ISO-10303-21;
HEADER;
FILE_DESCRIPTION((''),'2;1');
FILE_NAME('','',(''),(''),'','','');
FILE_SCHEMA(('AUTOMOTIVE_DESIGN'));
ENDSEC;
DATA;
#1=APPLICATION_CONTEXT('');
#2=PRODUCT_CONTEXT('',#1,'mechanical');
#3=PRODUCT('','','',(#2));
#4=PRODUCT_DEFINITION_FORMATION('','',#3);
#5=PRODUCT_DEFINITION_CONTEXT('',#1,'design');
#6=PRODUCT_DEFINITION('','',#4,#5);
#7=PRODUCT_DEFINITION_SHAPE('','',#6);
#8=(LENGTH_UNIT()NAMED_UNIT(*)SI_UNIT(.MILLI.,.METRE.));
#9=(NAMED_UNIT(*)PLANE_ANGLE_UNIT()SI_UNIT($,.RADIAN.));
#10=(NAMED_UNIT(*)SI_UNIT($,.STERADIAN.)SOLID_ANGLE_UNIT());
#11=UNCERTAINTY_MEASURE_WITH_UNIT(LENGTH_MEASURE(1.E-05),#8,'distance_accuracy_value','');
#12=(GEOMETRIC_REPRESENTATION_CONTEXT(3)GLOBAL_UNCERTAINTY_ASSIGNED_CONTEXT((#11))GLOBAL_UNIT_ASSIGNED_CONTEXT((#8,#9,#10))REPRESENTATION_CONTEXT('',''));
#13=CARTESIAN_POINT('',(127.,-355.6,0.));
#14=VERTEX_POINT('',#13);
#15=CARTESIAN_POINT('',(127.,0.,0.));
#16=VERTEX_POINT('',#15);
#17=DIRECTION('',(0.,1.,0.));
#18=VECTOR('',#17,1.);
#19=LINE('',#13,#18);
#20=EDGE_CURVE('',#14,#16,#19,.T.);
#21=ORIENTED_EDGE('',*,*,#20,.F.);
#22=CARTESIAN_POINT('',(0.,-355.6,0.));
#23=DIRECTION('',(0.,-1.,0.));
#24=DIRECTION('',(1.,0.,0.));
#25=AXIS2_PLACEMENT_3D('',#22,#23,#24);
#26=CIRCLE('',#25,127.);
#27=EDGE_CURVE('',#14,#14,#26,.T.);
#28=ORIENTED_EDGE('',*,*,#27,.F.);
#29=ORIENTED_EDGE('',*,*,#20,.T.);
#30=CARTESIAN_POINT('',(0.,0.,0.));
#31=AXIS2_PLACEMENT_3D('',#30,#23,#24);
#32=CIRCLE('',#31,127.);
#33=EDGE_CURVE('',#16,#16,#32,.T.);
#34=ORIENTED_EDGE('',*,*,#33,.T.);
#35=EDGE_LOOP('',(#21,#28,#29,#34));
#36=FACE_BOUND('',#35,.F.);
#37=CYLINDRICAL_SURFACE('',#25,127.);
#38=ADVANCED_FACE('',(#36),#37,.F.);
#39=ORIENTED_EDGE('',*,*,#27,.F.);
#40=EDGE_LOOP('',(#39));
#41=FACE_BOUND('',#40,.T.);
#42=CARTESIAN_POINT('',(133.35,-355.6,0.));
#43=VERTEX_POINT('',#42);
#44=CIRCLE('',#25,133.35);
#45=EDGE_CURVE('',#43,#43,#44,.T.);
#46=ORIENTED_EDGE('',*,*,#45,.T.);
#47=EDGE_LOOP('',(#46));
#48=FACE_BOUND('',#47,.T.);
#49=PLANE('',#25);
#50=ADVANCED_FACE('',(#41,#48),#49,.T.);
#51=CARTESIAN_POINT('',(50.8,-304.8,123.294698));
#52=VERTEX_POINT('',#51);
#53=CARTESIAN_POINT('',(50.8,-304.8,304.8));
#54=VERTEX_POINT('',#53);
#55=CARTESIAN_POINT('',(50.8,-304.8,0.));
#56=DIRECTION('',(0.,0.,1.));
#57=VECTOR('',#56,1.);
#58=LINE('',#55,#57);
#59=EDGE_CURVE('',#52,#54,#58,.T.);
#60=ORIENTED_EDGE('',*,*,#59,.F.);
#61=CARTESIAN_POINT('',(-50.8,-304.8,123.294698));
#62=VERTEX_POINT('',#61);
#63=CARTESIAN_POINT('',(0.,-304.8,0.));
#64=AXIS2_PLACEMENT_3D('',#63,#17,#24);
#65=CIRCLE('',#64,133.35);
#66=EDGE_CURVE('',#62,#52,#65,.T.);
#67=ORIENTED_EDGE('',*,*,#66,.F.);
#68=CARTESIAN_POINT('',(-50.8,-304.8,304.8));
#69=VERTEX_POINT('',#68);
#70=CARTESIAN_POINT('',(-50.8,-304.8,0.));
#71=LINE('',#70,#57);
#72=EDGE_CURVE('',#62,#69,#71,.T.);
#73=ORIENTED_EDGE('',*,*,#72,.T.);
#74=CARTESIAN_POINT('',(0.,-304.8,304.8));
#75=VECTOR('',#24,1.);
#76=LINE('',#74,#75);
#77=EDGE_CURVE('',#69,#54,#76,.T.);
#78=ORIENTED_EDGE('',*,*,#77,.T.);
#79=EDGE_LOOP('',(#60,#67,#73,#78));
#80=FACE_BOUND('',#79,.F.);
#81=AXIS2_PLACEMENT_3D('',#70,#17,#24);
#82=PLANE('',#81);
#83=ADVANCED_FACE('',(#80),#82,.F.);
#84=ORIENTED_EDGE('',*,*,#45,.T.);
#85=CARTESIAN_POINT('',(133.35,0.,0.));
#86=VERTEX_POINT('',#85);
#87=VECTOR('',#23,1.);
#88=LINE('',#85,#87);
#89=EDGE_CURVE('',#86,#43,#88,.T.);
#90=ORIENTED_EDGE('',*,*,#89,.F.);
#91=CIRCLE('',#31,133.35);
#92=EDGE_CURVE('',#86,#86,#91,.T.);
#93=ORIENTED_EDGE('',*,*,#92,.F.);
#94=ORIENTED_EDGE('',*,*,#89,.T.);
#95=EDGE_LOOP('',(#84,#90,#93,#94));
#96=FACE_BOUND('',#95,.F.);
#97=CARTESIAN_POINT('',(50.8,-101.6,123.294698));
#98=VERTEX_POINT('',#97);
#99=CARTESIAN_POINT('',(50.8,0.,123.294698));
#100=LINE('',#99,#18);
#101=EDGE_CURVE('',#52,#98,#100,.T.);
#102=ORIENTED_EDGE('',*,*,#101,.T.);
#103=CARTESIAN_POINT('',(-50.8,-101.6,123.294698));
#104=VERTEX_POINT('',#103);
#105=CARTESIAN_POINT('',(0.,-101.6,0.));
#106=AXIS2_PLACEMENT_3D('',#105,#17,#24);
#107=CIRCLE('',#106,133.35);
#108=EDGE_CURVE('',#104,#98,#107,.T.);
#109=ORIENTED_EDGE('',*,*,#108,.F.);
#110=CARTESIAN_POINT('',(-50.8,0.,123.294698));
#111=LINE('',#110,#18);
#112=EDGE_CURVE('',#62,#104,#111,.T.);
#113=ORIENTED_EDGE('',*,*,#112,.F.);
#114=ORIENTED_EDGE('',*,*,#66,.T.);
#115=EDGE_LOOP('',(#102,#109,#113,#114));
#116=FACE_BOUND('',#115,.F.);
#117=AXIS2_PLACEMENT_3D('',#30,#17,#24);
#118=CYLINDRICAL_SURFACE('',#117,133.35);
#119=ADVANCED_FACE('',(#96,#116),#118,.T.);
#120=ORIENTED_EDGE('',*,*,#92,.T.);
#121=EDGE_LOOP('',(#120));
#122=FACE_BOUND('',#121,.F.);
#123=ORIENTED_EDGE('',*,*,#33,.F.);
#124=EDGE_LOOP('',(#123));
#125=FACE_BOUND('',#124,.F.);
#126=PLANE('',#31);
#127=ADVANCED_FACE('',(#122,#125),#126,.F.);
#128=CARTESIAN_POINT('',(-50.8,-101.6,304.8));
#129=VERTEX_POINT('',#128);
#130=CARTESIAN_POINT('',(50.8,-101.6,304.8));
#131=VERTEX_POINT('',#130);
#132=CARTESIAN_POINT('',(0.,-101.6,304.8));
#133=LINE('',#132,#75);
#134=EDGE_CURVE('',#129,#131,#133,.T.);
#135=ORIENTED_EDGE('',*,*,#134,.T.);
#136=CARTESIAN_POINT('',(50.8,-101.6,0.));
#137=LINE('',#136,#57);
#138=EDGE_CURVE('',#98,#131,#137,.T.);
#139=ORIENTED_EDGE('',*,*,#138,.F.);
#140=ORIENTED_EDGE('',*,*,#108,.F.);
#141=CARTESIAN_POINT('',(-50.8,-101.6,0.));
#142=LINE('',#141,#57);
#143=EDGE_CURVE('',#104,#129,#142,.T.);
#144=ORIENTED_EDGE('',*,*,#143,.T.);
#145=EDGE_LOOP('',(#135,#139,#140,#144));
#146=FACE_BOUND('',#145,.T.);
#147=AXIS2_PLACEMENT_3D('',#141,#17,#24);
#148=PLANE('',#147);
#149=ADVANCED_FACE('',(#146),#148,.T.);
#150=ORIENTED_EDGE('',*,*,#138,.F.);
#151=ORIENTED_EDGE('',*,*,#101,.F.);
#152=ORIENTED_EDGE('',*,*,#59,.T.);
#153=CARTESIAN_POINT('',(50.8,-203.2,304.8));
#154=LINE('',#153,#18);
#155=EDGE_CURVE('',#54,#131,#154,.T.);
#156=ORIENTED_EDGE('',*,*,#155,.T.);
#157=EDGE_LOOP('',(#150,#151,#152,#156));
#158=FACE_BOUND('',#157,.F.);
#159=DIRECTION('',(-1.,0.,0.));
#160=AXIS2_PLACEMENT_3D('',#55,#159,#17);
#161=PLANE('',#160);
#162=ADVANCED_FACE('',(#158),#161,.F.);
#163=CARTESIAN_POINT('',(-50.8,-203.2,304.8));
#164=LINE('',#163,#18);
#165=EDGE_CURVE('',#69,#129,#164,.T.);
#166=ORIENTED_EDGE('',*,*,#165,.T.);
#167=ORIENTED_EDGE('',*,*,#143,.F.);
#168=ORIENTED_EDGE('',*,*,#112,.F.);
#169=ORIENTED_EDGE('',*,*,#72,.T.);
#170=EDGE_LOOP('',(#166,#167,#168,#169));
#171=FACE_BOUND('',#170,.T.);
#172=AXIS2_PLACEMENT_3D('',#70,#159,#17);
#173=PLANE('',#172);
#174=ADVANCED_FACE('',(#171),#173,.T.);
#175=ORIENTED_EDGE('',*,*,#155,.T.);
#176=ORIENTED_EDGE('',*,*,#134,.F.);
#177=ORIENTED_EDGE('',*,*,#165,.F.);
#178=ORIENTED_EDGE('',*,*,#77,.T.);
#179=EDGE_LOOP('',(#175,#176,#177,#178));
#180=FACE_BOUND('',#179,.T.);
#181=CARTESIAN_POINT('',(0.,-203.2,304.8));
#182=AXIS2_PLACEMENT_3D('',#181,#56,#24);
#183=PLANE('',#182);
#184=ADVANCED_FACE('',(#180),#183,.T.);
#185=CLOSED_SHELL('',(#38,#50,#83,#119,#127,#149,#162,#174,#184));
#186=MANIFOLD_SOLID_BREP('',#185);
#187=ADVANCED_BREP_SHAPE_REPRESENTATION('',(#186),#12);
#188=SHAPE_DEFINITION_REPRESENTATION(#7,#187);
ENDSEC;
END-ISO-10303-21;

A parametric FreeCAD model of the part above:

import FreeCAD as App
import Part
import Sketcher

V = App.Vector
Q = App.Units.Quantity


def add_polygon(sketch, points):
    """Adds a closed chain of lines whose ends are joined by coincident constraints."""
    first, n = sketch.GeometryCount, len(points)
    for a, b in zip(points, points[1:] + points[:1]):
        sketch.addGeometry(Part.LineSegment(App.Vector(*a, 0), App.Vector(*b, 0)), False)
    for i in range(n):
        sketch.addConstraint(Sketcher.Constraint("Coincident", first + i, 2, first + (i + 1) % n, 1))

doc = App.newDocument("Part")
body = doc.addObject("PartDesign::Body", "Body")

# Sketch on XZ plane
sketch1 = doc.addObject("Sketcher::SketchObject", "Sketch")
body.addObject(sketch1)
sketch1.AttachmentSupport = (doc.XZ_Plane, [""])
sketch1.MapMode = "FlatFace"
sketch1.addGeometry(Part.Circle(V(0, 0, 0), V(0, 0, 1), 133), False)
sketch1.addConstraint([
    Sketcher.Constraint("Coincident", 0, 3, -1, 1),
    Sketcher.Constraint("Diameter", 0, Q("10.5 in")),
])
pad1 = doc.addObject("PartDesign::Pad", "Pad")
body.addObject(pad1)
pad1.Profile = sketch1
pad1.Length = Q("14 in")

# Sketch on XY plane
sketch2 = doc.addObject("Sketcher::SketchObject", "Sketch001")
body.addObject(sketch2)
sketch2.AttachmentSupport = (doc.XY_Plane, [""])
sketch2.MapMode = "FlatFace"
add_polygon(sketch2, [(-51, -102), (-51, -305), (51, -305), (51, -102)])  # lines 0-3
sketch2.addConstraint([
    Sketcher.Constraint("Vertical", 0),
    Sketcher.Constraint("Horizontal", 1),
    Sketcher.Constraint("Vertical", 2),
    Sketcher.Constraint("Horizontal", 3),
    Sketcher.Constraint("DistanceX", 1, 1, 1, 2, Q("4 in")),
    Sketcher.Constraint("DistanceY", 0, 2, 0, 1, Q("8 in")),
    Sketcher.Constraint("DistanceX", 0, 2, -1, 1, Q("2 in")),
    Sketcher.Constraint("DistanceY", 0, 2, -1, 1, Q("12 in")),
])
pad2 = doc.addObject("PartDesign::Pad", "Pad001")
body.addObject(pad2)
pad2.Profile = sketch2
pad2.Length = Q("12 in")

# Sketch on XZ plane
sketch3 = doc.addObject("Sketcher::SketchObject", "Sketch002")
body.addObject(sketch3)
sketch3.AttachmentSupport = (doc.XZ_Plane, [""])
sketch3.MapMode = "FlatFace"
sketch3.AttachmentOffset = App.Placement(V(0, 0, 14 * 25.4), App.Rotation())
sketch3.addGeometry(Part.Circle(V(0, 0, 0), V(0, 0, 1), 127), False)
sketch3.addConstraint([
    Sketcher.Constraint("Coincident", 0, 3, -1, 1),
    Sketcher.Constraint("Diameter", 0, Q("10 in")),
])
pocket1 = doc.addObject("PartDesign::Pocket", "Pocket")
body.addObject(pocket1)
pocket1.Profile = sketch3
pocket1.Type = "ThroughAll"

doc.recompute()
